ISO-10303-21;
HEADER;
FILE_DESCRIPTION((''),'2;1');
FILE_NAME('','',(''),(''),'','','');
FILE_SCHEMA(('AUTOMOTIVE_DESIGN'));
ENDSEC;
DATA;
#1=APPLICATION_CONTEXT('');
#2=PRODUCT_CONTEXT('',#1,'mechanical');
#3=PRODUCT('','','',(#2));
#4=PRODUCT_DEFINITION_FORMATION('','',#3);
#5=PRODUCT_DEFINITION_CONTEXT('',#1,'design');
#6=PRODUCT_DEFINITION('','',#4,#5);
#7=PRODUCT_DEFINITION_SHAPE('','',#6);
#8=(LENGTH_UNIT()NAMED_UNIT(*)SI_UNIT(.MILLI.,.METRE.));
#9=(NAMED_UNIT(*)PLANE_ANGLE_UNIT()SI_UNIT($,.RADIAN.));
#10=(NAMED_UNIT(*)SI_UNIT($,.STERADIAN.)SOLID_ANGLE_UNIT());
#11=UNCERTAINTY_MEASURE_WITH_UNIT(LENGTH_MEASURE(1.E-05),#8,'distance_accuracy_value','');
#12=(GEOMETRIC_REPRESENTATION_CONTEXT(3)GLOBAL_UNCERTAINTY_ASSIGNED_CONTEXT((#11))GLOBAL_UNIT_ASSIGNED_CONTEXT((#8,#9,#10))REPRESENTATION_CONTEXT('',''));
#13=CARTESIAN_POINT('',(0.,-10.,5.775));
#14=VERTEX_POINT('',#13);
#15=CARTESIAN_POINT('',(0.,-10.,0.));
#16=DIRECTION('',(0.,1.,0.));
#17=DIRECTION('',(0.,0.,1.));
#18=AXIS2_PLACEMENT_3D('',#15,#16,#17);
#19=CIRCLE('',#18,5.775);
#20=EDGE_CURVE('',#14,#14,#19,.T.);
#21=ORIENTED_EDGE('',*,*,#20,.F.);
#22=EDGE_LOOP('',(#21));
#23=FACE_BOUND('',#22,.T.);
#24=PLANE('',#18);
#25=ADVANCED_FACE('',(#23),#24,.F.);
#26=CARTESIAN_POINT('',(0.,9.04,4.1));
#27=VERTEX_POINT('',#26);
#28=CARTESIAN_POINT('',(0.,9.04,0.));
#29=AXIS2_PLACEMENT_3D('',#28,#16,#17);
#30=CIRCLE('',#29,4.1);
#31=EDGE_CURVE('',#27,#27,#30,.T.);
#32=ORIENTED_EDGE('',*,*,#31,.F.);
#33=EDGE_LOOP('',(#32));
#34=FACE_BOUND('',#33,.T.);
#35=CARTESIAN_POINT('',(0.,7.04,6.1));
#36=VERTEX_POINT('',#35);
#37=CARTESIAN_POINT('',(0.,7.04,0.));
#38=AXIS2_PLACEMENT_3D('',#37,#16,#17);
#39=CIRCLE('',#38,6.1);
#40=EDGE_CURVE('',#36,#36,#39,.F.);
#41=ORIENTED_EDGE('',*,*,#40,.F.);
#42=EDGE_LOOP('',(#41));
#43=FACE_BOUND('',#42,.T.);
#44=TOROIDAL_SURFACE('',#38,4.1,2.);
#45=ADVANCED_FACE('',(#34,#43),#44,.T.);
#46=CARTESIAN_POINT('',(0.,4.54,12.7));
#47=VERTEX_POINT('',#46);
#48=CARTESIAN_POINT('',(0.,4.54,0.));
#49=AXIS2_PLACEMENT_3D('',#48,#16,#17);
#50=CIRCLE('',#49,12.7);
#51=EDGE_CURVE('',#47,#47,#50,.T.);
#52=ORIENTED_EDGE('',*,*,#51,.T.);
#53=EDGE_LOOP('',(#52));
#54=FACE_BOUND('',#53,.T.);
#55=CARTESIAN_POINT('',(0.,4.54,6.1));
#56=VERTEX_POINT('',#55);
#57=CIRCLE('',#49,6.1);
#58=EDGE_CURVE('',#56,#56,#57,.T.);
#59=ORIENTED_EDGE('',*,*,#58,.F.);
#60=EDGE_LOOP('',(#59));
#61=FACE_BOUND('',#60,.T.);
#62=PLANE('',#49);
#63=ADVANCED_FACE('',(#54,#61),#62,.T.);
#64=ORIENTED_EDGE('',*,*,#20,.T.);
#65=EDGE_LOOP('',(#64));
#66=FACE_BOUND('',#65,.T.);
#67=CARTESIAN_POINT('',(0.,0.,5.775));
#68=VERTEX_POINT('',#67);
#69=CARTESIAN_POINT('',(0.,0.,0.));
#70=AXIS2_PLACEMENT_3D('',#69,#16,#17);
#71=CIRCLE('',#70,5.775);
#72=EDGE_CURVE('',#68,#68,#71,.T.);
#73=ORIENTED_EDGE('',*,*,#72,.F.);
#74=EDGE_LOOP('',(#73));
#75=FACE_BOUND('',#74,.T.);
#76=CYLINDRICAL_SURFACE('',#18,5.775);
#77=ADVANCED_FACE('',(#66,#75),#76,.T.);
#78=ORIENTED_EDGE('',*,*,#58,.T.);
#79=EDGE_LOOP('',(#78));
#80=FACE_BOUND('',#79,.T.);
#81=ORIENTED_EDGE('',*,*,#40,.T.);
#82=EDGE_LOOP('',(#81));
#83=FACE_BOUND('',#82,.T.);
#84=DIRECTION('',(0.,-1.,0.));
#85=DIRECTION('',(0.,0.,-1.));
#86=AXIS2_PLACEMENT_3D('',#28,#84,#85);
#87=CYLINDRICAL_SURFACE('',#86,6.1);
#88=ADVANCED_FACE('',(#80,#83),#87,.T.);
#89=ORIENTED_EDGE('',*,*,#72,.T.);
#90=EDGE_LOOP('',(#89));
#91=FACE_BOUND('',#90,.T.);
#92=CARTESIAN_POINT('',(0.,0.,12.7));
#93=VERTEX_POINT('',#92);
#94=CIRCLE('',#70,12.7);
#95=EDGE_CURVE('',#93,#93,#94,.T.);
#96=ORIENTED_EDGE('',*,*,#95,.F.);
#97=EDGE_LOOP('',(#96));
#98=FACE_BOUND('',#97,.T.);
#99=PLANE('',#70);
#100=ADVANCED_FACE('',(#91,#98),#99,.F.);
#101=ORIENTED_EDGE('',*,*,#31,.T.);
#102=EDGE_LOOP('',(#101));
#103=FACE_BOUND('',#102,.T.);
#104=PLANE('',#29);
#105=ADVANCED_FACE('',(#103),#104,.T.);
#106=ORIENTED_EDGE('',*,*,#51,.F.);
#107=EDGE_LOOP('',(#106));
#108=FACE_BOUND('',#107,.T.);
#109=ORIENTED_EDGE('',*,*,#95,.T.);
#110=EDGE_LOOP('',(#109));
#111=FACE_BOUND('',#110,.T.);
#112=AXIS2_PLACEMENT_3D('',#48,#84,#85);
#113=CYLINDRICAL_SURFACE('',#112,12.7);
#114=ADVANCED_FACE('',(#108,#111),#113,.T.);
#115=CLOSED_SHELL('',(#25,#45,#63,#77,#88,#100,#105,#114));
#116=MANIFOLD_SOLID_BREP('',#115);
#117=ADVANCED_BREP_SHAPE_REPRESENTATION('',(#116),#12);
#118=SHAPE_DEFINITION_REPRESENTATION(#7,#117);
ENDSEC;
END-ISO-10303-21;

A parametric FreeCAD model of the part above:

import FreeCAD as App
import Part
import Sketcher
from FreeCAD import Vector


def edges_at(feature, points):
    """Names of the edges that pass closest to the given points."""
    edges = feature.Shape.Edges
    near = lambda p: min(range(len(edges)), key=lambda i: edges[i].distToShape(Part.Vertex(*p))[0])
    return sorted({f"Edge{near(p) + 1}" for p in points})

doc = App.newDocument("Part")
body = doc.addObject("PartDesign::Body", "Body")

# Sketch on XZ plane
sketch1 = body.newObject("Sketcher::SketchObject", "Sketch")
sketch1.AttachmentSupport = (doc.getObject("XZ_Plane"), [""])
sketch1.MapMode = "FlatFace"
sketch1.addGeometry(Part.Circle(Vector(0, 0, 0), Vector(0, 0, 1), 6), False)
sketch1.addConstraint(Sketcher.Constraint("Coincident", 0, 3, -1, 1))
sketch1.addConstraint(Sketcher.Constraint("Diameter", 0, 11.55))
pad1 = body.newObject("PartDesign::Pad", "Pad")
pad1.Profile = sketch1
pad1.Length = 10

# Sketch on XZ plane
sketch2 = body.newObject("Sketcher::SketchObject", "Sketch001")
sketch2.AttachmentSupport = (doc.getObject("XZ_Plane"), [""])
sketch2.MapMode = "FlatFace"
sketch2.addGeometry(Part.Circle(Vector(0, 0, 0), Vector(0, 0, 1), 13), False)
sketch2.addConstraint(Sketcher.Constraint("Coincident", 0, 3, -1, 1))
sketch2.addConstraint(Sketcher.Constraint("Diameter", 0, 25.4))
pad2 = body.newObject("PartDesign::Pad", "Pad001")
pad2.Profile = sketch2
pad2.Length = 4.54
pad2.Reversed = True

# Sketch on XZ plane
sketch3 = body.newObject("Sketcher::SketchObject", "Sketch002")
sketch3.AttachmentSupport = (doc.getObject("XZ_Plane"), [""])
sketch3.MapMode = "FlatFace"
sketch3.AttachmentOffset = App.Placement(Vector(0, 0, -4.54), App.Rotation())
sketch3.addGeometry(Part.Circle(Vector(0, 0, 0), Vector(0, 0, 1), 6), False)
sketch3.addConstraint(Sketcher.Constraint("Coincident", 0, 3, -1, 1))
sketch3.addConstraint(Sketcher.Constraint("Diameter", 0, 12.2))
pad3 = body.newObject("PartDesign::Pad", "Pad002")
pad3.Profile = sketch3
pad3.Length = 4.5
pad3.Reversed = True
doc.recompute()

fillet = body.newObject("PartDesign::Fillet", "Fillet")
fillet.Base = (pad3, edges_at(pad3, [(0, 9.04, -6.1)]))
fillet.Radius = 2

doc.recompute()
